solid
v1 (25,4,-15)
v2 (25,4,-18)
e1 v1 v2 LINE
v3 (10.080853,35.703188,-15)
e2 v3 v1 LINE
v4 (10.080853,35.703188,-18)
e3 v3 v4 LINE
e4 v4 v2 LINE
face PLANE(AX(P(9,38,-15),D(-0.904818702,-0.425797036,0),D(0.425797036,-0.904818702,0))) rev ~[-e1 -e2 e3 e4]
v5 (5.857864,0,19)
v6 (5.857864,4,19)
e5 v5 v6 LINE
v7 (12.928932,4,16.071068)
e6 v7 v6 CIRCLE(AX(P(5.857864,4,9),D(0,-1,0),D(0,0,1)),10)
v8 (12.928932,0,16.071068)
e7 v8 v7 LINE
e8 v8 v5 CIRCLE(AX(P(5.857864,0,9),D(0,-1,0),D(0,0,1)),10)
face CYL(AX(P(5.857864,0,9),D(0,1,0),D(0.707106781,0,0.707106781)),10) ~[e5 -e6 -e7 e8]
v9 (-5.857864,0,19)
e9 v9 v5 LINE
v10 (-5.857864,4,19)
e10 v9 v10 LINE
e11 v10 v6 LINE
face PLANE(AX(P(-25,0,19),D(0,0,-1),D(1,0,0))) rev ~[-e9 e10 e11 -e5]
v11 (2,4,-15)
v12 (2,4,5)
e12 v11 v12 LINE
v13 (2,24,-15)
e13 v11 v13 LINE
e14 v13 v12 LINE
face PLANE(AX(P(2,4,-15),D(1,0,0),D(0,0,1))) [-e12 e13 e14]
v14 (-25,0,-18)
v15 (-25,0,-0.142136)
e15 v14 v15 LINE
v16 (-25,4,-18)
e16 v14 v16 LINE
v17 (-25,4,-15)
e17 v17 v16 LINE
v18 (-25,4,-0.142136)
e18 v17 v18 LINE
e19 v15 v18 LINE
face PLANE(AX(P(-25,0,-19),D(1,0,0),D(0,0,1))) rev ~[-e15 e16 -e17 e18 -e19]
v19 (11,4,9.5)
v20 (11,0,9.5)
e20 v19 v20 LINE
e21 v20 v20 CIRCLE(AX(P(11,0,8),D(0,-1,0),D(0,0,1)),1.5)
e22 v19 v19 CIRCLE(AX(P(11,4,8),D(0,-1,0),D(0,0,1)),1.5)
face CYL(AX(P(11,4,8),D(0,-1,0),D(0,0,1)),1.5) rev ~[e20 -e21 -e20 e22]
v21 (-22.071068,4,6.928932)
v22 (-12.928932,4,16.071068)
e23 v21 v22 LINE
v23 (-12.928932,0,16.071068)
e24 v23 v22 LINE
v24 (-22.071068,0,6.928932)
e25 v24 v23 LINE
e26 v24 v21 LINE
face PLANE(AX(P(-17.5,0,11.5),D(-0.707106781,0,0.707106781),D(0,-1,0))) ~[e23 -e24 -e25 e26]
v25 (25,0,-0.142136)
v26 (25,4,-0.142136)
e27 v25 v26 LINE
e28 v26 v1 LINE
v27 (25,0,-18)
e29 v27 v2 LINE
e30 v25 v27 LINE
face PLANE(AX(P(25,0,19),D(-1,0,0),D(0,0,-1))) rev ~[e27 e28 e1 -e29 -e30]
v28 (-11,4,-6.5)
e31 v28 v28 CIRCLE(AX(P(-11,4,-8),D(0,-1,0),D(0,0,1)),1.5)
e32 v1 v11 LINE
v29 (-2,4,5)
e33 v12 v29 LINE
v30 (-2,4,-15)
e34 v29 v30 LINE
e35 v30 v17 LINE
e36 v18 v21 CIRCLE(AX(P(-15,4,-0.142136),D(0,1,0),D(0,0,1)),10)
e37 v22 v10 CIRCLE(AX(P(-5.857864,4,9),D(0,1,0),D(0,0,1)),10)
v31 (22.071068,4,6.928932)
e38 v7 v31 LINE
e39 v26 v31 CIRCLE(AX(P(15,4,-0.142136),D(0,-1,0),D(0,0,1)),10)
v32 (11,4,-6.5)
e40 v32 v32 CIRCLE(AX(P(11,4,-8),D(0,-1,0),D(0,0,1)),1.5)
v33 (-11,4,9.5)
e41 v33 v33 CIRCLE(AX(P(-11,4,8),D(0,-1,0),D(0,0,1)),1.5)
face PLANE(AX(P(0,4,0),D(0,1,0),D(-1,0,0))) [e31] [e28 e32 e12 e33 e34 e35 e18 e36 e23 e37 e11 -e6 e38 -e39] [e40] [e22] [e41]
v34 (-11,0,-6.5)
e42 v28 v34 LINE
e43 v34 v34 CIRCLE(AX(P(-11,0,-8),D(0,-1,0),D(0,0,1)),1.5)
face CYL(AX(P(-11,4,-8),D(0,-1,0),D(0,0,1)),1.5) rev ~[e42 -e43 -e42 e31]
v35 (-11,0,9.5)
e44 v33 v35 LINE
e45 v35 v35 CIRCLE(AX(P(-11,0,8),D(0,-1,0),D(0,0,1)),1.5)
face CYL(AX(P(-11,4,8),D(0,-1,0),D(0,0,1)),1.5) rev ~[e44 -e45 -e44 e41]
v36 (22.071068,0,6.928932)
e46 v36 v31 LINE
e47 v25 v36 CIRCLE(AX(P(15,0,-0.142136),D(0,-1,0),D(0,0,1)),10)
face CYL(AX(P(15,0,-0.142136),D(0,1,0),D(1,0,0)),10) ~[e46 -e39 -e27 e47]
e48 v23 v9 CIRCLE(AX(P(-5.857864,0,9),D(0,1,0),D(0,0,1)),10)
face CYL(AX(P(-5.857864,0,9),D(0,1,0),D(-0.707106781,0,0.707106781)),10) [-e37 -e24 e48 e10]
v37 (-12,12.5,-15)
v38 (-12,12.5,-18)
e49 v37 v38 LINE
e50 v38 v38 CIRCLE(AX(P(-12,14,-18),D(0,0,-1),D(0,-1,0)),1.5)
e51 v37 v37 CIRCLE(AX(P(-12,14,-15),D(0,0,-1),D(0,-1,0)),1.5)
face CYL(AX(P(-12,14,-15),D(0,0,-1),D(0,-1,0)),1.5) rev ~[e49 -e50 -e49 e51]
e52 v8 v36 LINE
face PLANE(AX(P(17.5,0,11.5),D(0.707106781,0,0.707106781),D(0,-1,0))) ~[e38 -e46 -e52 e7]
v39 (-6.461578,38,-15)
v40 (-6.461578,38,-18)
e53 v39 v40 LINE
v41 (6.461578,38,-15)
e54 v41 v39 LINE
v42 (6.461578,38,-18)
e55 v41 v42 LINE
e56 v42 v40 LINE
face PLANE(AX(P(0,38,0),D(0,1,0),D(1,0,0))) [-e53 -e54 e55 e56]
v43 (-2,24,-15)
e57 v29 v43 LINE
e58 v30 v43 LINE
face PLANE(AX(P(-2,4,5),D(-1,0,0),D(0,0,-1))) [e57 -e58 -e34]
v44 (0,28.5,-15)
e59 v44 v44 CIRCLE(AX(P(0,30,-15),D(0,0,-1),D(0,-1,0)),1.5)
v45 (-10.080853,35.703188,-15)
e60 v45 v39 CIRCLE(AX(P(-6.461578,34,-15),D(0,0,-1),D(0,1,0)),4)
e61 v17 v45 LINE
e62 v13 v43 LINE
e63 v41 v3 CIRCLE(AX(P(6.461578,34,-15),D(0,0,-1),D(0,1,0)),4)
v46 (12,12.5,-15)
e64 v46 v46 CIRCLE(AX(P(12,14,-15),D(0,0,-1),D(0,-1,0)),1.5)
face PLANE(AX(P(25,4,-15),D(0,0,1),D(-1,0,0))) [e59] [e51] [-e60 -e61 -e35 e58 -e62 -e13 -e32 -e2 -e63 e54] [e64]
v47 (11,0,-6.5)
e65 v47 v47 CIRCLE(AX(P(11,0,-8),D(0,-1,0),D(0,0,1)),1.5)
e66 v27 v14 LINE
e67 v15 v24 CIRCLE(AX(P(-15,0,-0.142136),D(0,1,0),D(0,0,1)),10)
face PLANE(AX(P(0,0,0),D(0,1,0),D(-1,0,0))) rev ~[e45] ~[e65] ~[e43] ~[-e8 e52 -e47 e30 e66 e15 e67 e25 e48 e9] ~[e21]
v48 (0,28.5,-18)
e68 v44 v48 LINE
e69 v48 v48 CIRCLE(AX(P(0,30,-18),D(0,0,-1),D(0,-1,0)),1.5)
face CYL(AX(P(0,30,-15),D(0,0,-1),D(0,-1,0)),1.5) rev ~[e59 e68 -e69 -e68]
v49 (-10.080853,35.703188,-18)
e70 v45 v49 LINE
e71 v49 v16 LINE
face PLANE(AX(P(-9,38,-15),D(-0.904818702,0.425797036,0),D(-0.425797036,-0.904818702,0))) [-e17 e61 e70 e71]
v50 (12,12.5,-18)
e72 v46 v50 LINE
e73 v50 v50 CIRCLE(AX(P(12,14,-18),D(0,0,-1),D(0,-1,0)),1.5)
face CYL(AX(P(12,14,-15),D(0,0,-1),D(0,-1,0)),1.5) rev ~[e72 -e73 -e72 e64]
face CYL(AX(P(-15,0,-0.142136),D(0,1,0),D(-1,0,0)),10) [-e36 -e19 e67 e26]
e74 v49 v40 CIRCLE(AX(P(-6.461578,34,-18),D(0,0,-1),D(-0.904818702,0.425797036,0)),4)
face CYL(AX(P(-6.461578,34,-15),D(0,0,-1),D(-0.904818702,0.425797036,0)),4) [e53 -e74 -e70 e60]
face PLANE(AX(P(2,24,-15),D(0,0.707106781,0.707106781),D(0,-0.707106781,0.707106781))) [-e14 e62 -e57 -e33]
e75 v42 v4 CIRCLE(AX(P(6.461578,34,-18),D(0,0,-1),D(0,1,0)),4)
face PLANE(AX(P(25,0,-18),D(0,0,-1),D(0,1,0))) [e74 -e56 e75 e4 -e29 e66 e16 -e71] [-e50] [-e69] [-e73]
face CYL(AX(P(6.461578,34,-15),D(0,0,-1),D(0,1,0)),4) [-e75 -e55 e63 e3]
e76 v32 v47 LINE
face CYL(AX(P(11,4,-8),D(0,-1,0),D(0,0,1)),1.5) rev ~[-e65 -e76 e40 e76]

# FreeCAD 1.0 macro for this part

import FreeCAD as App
import Part
import Sketcher

V = App.Vector
Q = App.Units.Quantity


def edges_at(feature, points):
    """Names of the edges that pass closest to the given points."""
    edges = feature.Shape.Edges
    near = lambda p: min(range(len(edges)), key=lambda i: edges[i].distToShape(Part.Vertex(*p))[0])
    return sorted({f"Edge{near(p) + 1}" for p in points})


def add_polygon(sketch, points):
    """Adds a closed chain of lines whose ends are joined by coincident constraints."""
    first, n = sketch.GeometryCount, len(points)
    for a, b in zip(points, points[1:] + points[:1]):
        sketch.addGeometry(Part.LineSegment(App.Vector(*a, 0), App.Vector(*b, 0)), False)
    for i in range(n):
        sketch.addConstraint(Sketcher.Constraint("Coincident", first + i, 2, first + (i + 1) % n, 1))

doc = App.newDocument("Part")
body = doc.addObject("PartDesign::Body", "Body")

sketch1 = body.newObject("Sketcher::SketchObject", "Sketch")
sketch1.AttachmentSupport = (doc.getObject("XZ_Plane"), [""])
sketch1.MapMode = "FlatFace"
add_polygon(sketch1, [(-25, -19), (-25, 19), (25, 19), (25, -19)])
sketch1.addConstraint([
    Sketcher.Constraint("Vertical", 0),
    Sketcher.Constraint("Horizontal", 1),
    Sketcher.Constraint("Vertical", 2),
    Sketcher.Constraint("Horizontal", 3),
    Sketcher.Constraint("Symmetric", 0, 2, 2, 2, -1, 1),
    Sketcher.Constraint("DistanceX", 1, 1, 1, 2, Q("50 mm")),
    Sketcher.Constraint("DistanceY", 0, 1, 0, 2, Q("38 mm")),
])
pad1 = body.newObject("PartDesign::Pad", "Pad")
pad1.Profile = sketch1
pad1.Length = 4
pad1.Reversed = True

sketch2 = body.newObject("Sketcher::SketchObject", "Sketch001")
sketch2.AttachmentSupport = (doc.getObject("XZ_Plane"), [""])
sketch2.MapMode = "FlatFace"
sketch2.AttachmentOffset = App.Placement(V(0, 0, -4), App.Rotation())
add_polygon(sketch2, [(25, -19), (-25, -19), (-25, -15), (25, -15)])
sketch2.addConstraint([
    Sketcher.Constraint("Horizontal", 0),
    Sketcher.Constraint("Vertical", 1),
    Sketcher.Constraint("Horizontal", 2),
    Sketcher.Constraint("Vertical", 3),
    Sketcher.Constraint("DistanceY", 1, 1, 1, 2, Q("4 mm")),
    Sketcher.Constraint("DistanceX", 0, 2, 0, 1, Q("50 mm")),
    Sketcher.Constraint("DistanceX", 0, 2, -1, 1, Q("25 mm")),
    Sketcher.Constraint("DistanceY", 0, 2, -1, 1, Q("19 mm")),
])
pad2 = body.newObject("PartDesign::Pad", "Pad001")
pad2.Profile = sketch2
pad2.Length = 34
pad2.Reversed = True

sketch3 = body.newObject("Sketcher::SketchObject", "Sketch002")
sketch3.AttachmentSupport = (doc.getObject("XZ_Plane"), [""])
sketch3.MapMode = "FlatFace"
sketch3.AttachmentOffset = App.Placement(V(0, 0, -4), App.Rotation())
sketch3.addGeometry([
    Part.Circle(V(-11, -8, 0), V(0, 0, 1), 1.5),
    Part.Circle(V(-11, 8, 0), V(0, 0, 1), 1.5),
    Part.Circle(V(11, 8, 0), V(0, 0, 1), 1.5),
    Part.Circle(V(11, -8, 0), V(0, 0, 1), 1.5),
], False)
sketch3.addConstraint([
    Sketcher.Constraint("Equal", 0, 1),
    Sketcher.Constraint("Equal", 1, 2),
    Sketcher.Constraint("Equal", 2, 3),
    Sketcher.Constraint("Symmetric", 0, 3, 2, 3, -1, 1),
    Sketcher.Constraint("Symmetric", 1, 3, 3, 3, -1, 1),
    Sketcher.Constraint("Symmetric", 1, 3, 2, 3, -2),
    Sketcher.Constraint("Diameter", 0, Q("3 mm")),
    Sketcher.Constraint("DistanceX", 0, 3, -1, 1, Q("11 mm")),
    Sketcher.Constraint("DistanceY", 0, 3, -1, 1, Q("8 mm")),
])
doc.recompute()
hole = body.newObject("PartDesign::Hole", "Hole")
hole.Profile = sketch3
hole.ThreadType = "None"
hole.Diameter = 3
hole.DepthType = "Dimension"
hole.Depth = 8
hole.DrillPoint = "Angled"
hole.DrillPointAngle = 118
hole.Reversed = True

sketch4 = body.newObject("Sketcher::SketchObject", "Sketch003")
sketch4.AttachmentSupport = (doc.getObject("XY_Plane"), [""])
sketch4.MapMode = "FlatFace"
sketch4.AttachmentOffset = App.Placement(V(0, 0, -15), App.Rotation())
sketch4.addGeometry([
    Part.Circle(V(0, 30, 0), V(0, 0, 1), 1.5),
    Part.Circle(V(-12, 14, 0), V(0, 0, 1), 1.5),
    Part.Circle(V(12, 14, 0), V(0, 0, 1), 1.5),
], False)
sketch4.addConstraint([
    Sketcher.Constraint("Equal", 0, 1),
    Sketcher.Constraint("Equal", 1, 2),
    Sketcher.Constraint("Symmetric", 1, 3, 2, 3, -2),
    Sketcher.Constraint("PointOnObject", 0, 3, -2),
    Sketcher.Constraint("Diameter", 0, Q("3 mm")),
    Sketcher.Constraint("DistanceY", -1, 1, 0, 3, Q("30 mm")),
    Sketcher.Constraint("DistanceX", 1, 3, -1, 1, Q("12 mm")),
    Sketcher.Constraint("DistanceY", -1, 1, 1, 3, Q("14 mm")),
])
doc.recompute()
hole2 = body.newObject("PartDesign::Hole", "Hole001")
hole2.Profile = sketch4
hole2.ThreadType = "None"
hole2.Diameter = 3
hole2.DepthType = "Dimension"
hole2.Depth = 8
hole2.DrillPoint = "Angled"
hole2.DrillPointAngle = 118

sketch5 = body.newObject("Sketcher::SketchObject", "Sketch004")
sketch5.AttachmentSupport = (doc.getObject("XY_Plane"), [""])
sketch5.MapMode = "FlatFace"
sketch5.AttachmentOffset = App.Placement(V(0, 0, -15), App.Rotation())
add_polygon(sketch5, [(-9, 38), (-25, 38), (-25, 4)])
add_polygon(sketch5, [(25, 38), (9, 38), (25, 4)])
sketch5.addConstraint([
    Sketcher.Constraint("Horizontal", 0),
    Sketcher.Constraint("Vertical", 1),
    Sketcher.Constraint("Horizontal", 3),
    Sketcher.Constraint("Vertical", 5),
    Sketcher.Constraint("Symmetric", 2, 2, 3, 2, -2),
    Sketcher.Constraint("Symmetric", 1, 2, 4, 2, -2),
    Sketcher.Constraint("DistanceX", 0, 2, 0, 1, Q("16 mm")),
    Sketcher.Constraint("DistanceY", 1, 2, 1, 1, Q("34 mm")),
    Sketcher.Constraint("DistanceX", 0, 2, -1, 1, Q("25 mm")),
    Sketcher.Constraint("DistanceY", -1, 1, 0, 2, Q("38 mm")),
])
pocket1 = body.newObject("PartDesign::Pocket", "Pocket")
pocket1.Profile = sketch5
pocket1.Length = 34
doc.recompute()

fillet = body.newObject("PartDesign::Fillet", "Fillet")
fillet.Base = (pocket1, edges_at(pocket1, [(-9, 38, -17), (9, 38, -17)]))
fillet.Radius = 4

sketch6 = body.newObject("Sketcher::SketchObject", "Sketch005")
sketch6.AttachmentSupport = (doc.getObject("XZ_Plane"), [""])
sketch6.MapMode = "FlatFace"
sketch6.AttachmentOffset = App.Placement(V(0, 0, -4), App.Rotation())
add_polygon(sketch6, [(2, 5), (2, -15), (-2, -15), (-2, 5)])
sketch6.addConstraint([
    Sketcher.Constraint("Vertical", 0),
    Sketcher.Constraint("Horizontal", 1),
    Sketcher.Constraint("Vertical", 2),
    Sketcher.Constraint("Horizontal", 3),
    Sketcher.Constraint("DistanceX", 1, 2, 1, 1, Q("4 mm")),
    Sketcher.Constraint("DistanceY", 0, 2, 0, 1, Q("20 mm")),
    Sketcher.Constraint("DistanceX", -1, 1, 0, 2, Q("2 mm")),
    Sketcher.Constraint("DistanceY", 0, 2, -1, 1, Q("15 mm")),
])
pad3 = body.newObject("PartDesign::Pad", "Pad002")
pad3.Profile = sketch6
pad3.Length = 20
pad3.Reversed = True

sketch7 = body.newObject("Sketcher::SketchObject", "Sketch006")
sketch7.AttachmentSupport = (doc.getObject("YZ_Plane"), [""])
sketch7.MapMode = "FlatFace"
sketch7.AttachmentOffset = App.Placement(V(0, 0, 2), App.Rotation())
add_polygon(sketch7, [(4, 5), (24, -15), (24, 5)])
sketch7.addConstraint([
    Sketcher.Constraint("Vertical", 1),
    Sketcher.Constraint("Horizontal", 2),
    Sketcher.Constraint("Equal", 2, 1),
    Sketcher.Constraint("DistanceX", 2, 2, 2, 1, Q("20 mm")),
    Sketcher.Constraint("DistanceX", -1, 1, 0, 2, Q("24 mm")),
    Sketcher.Constraint("DistanceY", 0, 2, -1, 1, Q("15 mm")),
])
pocket2 = body.newObject("PartDesign::Pocket", "Pocket001")
pocket2.Profile = sketch7
pocket2.Length = 18

sketch8 = body.newObject("Sketcher::SketchObject", "Sketch007")
sketch8.AttachmentSupport = (doc.getObject("YZ_Plane"), [""])
sketch8.MapMode = "FlatFace"
sketch8.AttachmentOffset = App.Placement(V(0, 0, 25), App.Rotation())
add_polygon(sketch8, [(0, -18), (0, -19), (38, -19), (38, -18)])
sketch8.addConstraint([
    Sketcher.Constraint("Vertical", 0),
    Sketcher.Constraint("Horizontal", 1),
    Sketcher.Constraint("Vertical", 2),
    Sketcher.Constraint("Horizontal", 3),
    Sketcher.Constraint("PointOnObject", 0, 2, -2),
    Sketcher.Constraint("DistanceX", 1, 1, 1, 2, Q("38 mm")),
    Sketcher.Constraint("DistanceY", 0, 2, 0, 1, Q("1 mm")),
    Sketcher.Constraint("DistanceY", 0, 2, -1, 1, Q("19 mm")),
])
pocket3 = body.newObject("PartDesign::Pocket", "Pocket002")
pocket3.Profile = sketch8
pocket3.Type = "ThroughAll"
doc.recompute()

chamfer = body.newObject("PartDesign::Chamfer", "Chamfer")
chamfer.Base = (pocket3, edges_at(pocket3, [(25, 2, 19), (-25, 2, 19)]))
chamfer.Size = 15
doc.recompute()

fillet2 = body.newObject("PartDesign::Fillet", "Fillet001")
fillet2.Base = (chamfer, edges_at(chamfer, [
    (25, 2, 4),
    (10, 2, 19),
    (-10, 2, 19),
    (-25, 2, 4),
]))
fillet2.Radius = 10

doc.recompute()
